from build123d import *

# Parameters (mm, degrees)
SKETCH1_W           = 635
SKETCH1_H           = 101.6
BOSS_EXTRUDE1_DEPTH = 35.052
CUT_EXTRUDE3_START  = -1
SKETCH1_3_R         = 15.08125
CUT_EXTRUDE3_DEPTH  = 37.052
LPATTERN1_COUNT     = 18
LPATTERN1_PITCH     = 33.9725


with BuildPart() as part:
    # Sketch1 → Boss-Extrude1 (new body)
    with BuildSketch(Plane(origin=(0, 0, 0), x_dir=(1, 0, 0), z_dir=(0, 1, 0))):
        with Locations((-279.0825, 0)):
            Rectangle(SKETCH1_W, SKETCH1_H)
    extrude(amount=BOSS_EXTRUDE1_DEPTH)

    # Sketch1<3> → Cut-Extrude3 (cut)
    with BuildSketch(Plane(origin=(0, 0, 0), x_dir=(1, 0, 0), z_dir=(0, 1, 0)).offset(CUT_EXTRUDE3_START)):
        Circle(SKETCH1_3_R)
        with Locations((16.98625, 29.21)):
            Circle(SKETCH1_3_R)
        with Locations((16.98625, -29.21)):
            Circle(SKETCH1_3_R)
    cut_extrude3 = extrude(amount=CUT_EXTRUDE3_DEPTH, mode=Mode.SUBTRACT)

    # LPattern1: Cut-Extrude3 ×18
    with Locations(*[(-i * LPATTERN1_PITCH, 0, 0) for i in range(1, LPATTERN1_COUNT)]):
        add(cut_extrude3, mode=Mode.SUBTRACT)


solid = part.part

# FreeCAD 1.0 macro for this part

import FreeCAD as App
import Part
import Sketcher

V = App.Vector
Q = App.Units.Quantity


def add_polygon(sketch, points):
    """Adds a closed chain of lines whose ends are joined by coincident constraints."""
    first, n = sketch.GeometryCount, len(points)
    for a, b in zip(points, points[1:] + points[:1]):
        sketch.addGeometry(Part.LineSegment(App.Vector(*a, 0), App.Vector(*b, 0)), False)
    for i in range(n):
        sketch.addConstraint(Sketcher.Constraint("Coincident", first + i, 2, first + (i + 1) % n, 1))

doc = App.newDocument("Part")
body = doc.addObject("PartDesign::Body", "Body")

sketch1 = body.newObject("Sketcher::SketchObject", "Sketch")
sketch1.AttachmentSupport = (doc.getObject("XZ_Plane"), [""])
sketch1.MapMode = "FlatFace"
add_polygon(sketch1, [(-597, -51), (-597, 51), (38, 51), (38, -51)])
sketch1.addConstraint([
    Sketcher.Constraint("Vertical", 0),
    Sketcher.Constraint("Horizontal", 1),
    Sketcher.Constraint("Vertical", 2),
    Sketcher.Constraint("Horizontal", 3),
    Sketcher.Constraint("DistanceX", 1, 1, 1, 2, Q("25 in")),
    Sketcher.Constraint("DistanceY", 0, 1, 0, 2, Q("4 in")),
    Sketcher.Constraint("DistanceY", -1, 1, 0, 2, Q("2 in")),
    Sketcher.Constraint("DistanceX", 0, 2, -1, 1, Q("23.4875 in")),
])
pad1 = body.newObject("PartDesign::Pad", "Pad")
pad1.Profile = sketch1
pad1.Length = Q("1.38 in")
pad1.Reversed = True

sketch2 = body.newObject("Sketcher::SketchObject", "Sketch001")
sketch2.AttachmentSupport = (doc.getObject("XZ_Plane"), [""])
sketch2.MapMode = "FlatFace"
sketch2.AttachmentOffset = App.Placement(V(0, 0, 1), App.Rotation())
sketch2.addGeometry([
    Part.Circle(V(0, 0, 0), V(0, 0, 1), 15),
    Part.Circle(V(17, -29, 0), V(0, 0, 1), 15),
    Part.Circle(V(17, 29, 0), V(0, 0, 1), 15),
], False)
sketch2.addConstraint([
    Sketcher.Constraint("Coincident", 0, 3, -1, 1),
    Sketcher.Constraint("Equal", 0, 1),
    Sketcher.Constraint("Equal", 1, 2),
    Sketcher.Constraint("Symmetric", 1, 3, 2, 3, -1),
    Sketcher.Constraint("Diameter", 0, Q("1.1875 in")),
    Sketcher.Constraint("DistanceY", 1, 3, 2, 3, Q("2.3 in")),
    Sketcher.Constraint("DistanceX", -1, 1, 1, 3, 16.98625),
])
pocket1 = body.newObject("PartDesign::Pocket", "Pocket")
pocket1.Profile = sketch2
pocket1.Length = 37.052
doc.recompute()

linearpattern = body.newObject("PartDesign::LinearPattern", "LinearPattern")
linearpattern.Originals = [pocket1]
linearpattern.Direction = (doc.getObject("X_Axis"), [""])
linearpattern.Mode = "offset"
linearpattern.Offset = Q("1.3375 in")
linearpattern.Occurrences = 18
linearpattern.Reversed = True
body.Tip = linearpattern

doc.recompute()
